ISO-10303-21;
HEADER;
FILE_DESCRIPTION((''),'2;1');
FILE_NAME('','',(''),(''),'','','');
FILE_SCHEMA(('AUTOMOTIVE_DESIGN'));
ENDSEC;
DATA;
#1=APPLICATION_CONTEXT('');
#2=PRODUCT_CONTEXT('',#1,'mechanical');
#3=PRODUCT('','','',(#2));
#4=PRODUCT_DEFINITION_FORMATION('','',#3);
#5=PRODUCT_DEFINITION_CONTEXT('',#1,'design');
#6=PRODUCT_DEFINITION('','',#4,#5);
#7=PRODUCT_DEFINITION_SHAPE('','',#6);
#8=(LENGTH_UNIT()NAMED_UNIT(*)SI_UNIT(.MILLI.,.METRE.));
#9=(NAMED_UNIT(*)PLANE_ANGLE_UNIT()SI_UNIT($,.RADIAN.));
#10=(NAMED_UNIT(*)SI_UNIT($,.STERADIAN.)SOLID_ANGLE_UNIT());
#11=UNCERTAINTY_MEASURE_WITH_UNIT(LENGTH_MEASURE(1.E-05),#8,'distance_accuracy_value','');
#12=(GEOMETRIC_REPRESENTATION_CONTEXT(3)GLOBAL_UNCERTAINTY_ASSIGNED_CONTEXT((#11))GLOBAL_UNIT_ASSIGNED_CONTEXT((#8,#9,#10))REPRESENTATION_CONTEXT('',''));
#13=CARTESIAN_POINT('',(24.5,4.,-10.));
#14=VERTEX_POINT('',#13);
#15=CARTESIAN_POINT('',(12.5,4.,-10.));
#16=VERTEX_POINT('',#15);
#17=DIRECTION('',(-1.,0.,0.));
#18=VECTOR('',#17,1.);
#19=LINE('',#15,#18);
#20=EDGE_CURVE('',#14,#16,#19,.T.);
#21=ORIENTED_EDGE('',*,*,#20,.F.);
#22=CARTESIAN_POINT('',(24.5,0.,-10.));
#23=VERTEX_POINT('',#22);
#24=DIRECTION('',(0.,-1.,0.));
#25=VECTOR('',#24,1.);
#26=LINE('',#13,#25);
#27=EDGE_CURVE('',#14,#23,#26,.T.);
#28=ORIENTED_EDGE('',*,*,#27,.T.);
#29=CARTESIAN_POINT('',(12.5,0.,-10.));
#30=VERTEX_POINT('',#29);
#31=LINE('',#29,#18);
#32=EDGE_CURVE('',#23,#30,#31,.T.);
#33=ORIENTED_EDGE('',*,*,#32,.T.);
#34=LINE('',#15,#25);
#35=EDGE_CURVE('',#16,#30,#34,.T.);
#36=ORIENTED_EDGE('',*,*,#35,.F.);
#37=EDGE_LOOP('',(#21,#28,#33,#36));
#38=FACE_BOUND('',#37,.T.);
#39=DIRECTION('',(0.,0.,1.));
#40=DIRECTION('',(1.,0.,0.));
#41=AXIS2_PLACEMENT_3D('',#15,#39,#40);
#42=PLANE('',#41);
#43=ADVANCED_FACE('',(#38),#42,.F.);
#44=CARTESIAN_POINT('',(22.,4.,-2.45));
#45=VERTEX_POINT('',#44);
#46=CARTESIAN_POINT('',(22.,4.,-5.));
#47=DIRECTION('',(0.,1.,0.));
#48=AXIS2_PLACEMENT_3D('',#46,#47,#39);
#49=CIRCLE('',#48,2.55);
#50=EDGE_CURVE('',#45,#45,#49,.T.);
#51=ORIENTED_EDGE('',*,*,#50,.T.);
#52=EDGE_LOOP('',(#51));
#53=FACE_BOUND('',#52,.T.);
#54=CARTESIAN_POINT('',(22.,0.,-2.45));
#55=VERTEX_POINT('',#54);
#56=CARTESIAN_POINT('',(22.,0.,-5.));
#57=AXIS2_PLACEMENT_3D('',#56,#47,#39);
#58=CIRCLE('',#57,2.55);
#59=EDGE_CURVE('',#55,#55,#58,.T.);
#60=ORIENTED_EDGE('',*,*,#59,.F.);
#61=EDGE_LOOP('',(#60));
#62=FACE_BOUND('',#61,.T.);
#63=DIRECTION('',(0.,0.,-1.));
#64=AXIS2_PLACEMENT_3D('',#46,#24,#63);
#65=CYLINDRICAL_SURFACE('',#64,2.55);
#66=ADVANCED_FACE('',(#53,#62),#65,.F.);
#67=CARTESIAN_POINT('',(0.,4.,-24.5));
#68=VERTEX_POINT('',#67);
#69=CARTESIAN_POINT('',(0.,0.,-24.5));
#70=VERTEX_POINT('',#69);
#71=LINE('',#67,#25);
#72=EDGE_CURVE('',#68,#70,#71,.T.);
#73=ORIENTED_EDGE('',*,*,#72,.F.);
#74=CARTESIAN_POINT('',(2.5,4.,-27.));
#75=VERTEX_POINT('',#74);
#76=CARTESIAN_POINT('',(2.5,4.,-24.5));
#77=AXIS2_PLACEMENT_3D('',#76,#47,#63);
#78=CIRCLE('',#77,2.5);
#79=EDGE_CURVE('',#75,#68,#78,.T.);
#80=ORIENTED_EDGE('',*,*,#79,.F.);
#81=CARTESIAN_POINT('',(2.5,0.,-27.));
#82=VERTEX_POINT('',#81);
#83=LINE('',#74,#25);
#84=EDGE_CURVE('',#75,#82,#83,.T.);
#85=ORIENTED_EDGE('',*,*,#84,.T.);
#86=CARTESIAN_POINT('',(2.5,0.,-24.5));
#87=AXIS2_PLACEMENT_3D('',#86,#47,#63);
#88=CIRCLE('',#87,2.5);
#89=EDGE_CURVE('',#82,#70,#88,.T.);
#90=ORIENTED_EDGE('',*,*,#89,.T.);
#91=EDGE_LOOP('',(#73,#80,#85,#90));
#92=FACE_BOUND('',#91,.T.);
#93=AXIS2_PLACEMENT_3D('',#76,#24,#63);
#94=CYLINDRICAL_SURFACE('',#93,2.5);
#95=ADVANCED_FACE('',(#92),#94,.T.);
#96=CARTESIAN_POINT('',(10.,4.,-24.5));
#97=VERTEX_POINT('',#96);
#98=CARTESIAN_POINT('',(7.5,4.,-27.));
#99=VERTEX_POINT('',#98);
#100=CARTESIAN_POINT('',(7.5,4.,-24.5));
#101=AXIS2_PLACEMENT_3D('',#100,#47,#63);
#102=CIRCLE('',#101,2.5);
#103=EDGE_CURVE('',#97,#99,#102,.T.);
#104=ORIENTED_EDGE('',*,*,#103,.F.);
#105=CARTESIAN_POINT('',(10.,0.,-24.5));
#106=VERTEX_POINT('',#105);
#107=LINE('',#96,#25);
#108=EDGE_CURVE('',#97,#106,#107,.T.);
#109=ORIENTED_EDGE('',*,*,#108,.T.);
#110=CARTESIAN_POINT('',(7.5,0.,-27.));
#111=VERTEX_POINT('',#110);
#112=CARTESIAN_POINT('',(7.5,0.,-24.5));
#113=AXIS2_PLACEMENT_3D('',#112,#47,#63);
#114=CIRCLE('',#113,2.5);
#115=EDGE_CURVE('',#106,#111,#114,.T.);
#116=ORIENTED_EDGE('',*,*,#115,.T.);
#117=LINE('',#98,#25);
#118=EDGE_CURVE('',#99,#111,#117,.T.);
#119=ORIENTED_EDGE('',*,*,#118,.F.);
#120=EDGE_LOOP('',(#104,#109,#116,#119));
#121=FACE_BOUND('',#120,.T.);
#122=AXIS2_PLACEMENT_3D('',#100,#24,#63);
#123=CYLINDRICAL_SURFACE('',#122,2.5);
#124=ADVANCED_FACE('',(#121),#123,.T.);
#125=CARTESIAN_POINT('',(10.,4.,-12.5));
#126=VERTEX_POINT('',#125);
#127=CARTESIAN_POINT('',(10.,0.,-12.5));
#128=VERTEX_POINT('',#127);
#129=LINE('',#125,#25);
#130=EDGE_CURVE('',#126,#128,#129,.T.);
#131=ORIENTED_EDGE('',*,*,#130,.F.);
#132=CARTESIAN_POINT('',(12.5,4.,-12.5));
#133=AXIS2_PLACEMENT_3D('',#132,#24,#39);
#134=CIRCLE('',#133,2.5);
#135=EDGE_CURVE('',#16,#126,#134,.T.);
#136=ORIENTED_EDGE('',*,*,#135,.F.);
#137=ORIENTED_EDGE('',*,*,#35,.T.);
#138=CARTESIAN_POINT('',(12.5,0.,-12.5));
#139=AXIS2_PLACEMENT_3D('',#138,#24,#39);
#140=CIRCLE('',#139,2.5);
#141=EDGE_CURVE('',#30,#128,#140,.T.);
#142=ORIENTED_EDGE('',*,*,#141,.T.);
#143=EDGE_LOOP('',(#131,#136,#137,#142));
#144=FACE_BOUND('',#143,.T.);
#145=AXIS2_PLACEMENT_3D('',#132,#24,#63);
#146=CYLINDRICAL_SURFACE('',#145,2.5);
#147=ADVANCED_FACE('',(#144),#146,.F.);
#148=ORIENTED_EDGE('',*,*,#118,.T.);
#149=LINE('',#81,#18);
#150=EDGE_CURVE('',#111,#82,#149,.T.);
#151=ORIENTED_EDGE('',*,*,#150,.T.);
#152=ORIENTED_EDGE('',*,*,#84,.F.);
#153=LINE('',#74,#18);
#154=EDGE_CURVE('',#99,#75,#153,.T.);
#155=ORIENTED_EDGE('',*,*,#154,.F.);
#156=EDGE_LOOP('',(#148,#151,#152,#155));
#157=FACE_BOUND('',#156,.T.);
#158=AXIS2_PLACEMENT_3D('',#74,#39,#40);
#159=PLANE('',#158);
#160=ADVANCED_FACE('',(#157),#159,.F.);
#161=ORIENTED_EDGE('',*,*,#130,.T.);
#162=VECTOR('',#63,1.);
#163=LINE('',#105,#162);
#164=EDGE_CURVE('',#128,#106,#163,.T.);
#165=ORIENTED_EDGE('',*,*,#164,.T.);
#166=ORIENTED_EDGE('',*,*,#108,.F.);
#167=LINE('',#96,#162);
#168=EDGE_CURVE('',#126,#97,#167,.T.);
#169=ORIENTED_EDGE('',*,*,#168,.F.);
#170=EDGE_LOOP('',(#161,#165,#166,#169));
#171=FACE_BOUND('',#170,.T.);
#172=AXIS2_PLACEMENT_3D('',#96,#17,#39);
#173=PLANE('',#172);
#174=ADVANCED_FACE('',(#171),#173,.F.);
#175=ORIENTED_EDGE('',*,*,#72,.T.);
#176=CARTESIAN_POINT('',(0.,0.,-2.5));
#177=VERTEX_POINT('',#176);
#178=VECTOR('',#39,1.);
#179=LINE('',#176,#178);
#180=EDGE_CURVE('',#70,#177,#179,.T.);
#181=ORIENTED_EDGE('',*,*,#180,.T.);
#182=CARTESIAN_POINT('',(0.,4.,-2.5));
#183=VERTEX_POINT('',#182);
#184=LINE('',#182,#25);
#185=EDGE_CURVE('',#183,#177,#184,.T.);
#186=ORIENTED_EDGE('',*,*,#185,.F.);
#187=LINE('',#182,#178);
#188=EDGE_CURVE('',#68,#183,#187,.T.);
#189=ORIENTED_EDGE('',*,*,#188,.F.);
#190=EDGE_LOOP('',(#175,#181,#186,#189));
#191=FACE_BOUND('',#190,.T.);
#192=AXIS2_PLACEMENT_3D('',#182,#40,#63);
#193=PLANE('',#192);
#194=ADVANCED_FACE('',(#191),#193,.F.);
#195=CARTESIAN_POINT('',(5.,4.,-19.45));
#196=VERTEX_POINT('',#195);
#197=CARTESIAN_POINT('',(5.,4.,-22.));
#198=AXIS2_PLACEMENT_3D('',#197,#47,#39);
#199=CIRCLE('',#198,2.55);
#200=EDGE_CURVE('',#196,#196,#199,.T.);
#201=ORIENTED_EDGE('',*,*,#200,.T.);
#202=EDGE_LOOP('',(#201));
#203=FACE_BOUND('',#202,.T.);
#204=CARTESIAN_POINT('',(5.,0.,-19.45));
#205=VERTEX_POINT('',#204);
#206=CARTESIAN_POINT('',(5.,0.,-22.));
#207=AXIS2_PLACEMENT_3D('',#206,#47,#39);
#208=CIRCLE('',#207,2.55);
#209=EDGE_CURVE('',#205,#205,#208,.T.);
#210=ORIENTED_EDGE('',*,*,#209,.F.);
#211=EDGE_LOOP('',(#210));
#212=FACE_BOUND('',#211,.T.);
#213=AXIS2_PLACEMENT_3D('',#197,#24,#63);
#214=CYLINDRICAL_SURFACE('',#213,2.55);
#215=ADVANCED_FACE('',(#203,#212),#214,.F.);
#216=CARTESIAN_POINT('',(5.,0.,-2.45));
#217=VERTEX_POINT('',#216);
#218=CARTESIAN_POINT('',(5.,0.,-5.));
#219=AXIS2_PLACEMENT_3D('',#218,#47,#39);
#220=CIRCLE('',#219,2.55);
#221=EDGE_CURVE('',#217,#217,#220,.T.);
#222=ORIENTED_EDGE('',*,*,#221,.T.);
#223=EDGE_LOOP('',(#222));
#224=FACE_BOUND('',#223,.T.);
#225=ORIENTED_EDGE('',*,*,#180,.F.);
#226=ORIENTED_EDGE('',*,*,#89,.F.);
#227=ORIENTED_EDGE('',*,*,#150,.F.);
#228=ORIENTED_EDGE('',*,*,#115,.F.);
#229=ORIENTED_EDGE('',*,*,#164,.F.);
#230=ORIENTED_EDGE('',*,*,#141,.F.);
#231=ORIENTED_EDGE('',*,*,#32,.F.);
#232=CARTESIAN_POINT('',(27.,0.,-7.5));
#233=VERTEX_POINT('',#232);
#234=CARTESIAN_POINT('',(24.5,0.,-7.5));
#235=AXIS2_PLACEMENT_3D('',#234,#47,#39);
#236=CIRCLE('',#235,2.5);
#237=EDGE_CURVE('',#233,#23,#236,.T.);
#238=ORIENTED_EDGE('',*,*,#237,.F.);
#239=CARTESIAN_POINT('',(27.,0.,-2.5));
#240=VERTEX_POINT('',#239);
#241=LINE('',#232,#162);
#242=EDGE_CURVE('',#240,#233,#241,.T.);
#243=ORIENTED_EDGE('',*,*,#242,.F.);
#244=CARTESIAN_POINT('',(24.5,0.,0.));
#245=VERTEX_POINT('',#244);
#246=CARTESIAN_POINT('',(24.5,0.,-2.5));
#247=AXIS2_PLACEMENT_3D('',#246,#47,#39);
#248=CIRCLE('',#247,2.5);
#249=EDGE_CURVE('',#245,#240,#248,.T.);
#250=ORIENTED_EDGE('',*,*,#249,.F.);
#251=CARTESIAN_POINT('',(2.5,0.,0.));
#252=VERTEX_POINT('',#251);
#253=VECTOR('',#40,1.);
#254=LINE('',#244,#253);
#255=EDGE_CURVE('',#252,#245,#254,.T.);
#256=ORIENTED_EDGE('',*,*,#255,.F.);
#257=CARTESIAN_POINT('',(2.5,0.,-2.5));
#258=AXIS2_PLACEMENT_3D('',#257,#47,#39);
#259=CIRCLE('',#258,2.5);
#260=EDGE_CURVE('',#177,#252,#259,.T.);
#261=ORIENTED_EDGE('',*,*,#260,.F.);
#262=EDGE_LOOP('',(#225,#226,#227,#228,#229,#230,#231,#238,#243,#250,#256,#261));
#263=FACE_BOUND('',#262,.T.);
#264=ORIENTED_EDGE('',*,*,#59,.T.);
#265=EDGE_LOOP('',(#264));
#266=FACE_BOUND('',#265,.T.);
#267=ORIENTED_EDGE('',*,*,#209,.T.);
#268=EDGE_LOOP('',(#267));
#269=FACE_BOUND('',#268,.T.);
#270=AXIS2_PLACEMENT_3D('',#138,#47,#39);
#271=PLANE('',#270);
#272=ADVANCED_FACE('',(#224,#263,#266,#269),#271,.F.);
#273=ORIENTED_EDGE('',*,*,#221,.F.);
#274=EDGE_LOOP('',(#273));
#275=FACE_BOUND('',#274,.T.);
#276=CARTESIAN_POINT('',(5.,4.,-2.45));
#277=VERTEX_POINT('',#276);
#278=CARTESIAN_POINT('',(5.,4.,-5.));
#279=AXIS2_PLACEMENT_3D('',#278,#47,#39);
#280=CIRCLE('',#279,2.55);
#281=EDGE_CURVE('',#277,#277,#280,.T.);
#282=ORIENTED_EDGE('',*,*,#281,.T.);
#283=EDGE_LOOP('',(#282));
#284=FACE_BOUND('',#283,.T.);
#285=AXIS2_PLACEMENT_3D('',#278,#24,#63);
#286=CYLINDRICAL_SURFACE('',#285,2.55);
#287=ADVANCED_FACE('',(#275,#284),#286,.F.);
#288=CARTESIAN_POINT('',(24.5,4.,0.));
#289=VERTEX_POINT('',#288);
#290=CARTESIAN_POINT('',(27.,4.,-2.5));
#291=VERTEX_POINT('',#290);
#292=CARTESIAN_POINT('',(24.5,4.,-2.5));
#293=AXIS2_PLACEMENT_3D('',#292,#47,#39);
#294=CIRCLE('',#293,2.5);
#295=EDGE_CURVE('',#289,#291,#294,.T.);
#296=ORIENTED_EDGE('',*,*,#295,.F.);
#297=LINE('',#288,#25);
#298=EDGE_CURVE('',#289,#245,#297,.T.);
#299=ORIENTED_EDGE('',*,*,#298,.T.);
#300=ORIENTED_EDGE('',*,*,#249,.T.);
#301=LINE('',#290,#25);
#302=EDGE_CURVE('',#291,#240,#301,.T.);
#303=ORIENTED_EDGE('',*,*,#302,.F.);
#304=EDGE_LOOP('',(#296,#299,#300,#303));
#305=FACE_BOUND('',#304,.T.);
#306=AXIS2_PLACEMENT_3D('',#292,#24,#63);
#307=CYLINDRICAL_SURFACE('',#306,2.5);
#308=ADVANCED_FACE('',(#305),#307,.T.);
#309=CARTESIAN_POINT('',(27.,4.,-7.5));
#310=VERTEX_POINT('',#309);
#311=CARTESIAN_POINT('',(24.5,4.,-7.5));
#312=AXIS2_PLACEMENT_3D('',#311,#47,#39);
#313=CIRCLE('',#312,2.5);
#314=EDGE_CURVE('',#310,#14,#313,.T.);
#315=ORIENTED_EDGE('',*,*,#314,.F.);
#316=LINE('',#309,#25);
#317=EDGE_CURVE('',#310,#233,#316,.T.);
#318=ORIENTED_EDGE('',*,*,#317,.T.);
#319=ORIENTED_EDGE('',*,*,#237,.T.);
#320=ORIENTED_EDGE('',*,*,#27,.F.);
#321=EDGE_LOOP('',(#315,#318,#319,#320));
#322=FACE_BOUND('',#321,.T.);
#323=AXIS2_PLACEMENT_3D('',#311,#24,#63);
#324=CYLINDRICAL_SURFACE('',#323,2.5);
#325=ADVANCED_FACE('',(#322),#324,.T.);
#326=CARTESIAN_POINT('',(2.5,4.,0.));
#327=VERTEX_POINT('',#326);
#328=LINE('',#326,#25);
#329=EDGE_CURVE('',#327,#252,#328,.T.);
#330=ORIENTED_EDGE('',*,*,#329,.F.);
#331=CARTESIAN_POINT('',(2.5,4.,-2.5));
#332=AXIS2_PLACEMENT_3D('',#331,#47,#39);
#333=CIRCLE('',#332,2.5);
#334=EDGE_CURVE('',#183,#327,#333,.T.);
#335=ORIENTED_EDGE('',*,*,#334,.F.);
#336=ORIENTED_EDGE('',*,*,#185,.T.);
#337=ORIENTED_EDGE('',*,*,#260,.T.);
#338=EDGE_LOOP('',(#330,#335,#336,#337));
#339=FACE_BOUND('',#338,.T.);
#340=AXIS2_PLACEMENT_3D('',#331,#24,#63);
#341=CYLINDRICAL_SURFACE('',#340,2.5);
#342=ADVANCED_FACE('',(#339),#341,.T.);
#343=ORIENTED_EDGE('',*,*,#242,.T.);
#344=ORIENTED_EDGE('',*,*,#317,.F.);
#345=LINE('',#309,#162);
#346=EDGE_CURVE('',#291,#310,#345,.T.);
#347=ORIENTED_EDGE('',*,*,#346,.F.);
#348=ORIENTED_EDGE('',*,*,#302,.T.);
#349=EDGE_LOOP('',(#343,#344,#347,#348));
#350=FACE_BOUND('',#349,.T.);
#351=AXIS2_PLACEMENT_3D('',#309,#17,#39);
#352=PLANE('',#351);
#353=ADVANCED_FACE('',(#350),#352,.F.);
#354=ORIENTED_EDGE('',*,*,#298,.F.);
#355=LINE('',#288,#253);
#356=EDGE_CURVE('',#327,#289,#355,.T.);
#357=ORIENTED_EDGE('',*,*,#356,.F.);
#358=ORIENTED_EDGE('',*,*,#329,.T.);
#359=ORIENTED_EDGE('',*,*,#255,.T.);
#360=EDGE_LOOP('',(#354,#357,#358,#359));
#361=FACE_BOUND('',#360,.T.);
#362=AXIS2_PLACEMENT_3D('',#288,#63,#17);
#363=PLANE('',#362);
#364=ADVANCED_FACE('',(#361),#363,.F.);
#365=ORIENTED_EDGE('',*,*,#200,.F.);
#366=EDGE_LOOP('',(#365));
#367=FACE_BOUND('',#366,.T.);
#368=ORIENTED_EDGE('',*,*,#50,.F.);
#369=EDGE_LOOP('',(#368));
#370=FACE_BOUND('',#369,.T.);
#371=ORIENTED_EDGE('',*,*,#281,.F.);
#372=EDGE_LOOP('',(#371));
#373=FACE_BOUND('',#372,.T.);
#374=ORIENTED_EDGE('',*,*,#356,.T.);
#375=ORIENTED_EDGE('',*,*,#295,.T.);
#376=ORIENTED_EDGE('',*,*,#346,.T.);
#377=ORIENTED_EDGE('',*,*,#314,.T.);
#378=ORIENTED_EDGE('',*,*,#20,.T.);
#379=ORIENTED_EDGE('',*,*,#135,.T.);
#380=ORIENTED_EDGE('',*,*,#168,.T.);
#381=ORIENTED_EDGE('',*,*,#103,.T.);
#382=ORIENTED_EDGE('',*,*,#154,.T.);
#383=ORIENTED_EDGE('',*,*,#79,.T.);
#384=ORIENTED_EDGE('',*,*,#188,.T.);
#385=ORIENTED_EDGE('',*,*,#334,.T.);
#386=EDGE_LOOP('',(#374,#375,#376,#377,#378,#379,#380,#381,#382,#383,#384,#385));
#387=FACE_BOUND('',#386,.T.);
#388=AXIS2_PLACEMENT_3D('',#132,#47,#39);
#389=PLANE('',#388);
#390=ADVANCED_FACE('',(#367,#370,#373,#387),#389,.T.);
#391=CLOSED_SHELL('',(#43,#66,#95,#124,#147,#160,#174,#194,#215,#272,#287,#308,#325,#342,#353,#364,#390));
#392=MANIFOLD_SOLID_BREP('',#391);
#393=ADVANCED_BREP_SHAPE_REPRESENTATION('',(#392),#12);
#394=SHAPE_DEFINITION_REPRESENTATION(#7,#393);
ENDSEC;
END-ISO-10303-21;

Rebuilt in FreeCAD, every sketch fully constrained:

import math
import FreeCAD as App
import Part
import Sketcher

doc = App.newDocument("Part")
body = doc.addObject("PartDesign::Body", "Body")

# Sketch on XZ plane
sketch1 = body.newObject("Sketcher::SketchObject", "Sketch")
sketch1.AttachmentSupport = (doc.getObject("XZ_Plane"), [""])
sketch1.MapMode = "FlatFace"
sketch1.addGeometry([
    Part.LineSegment(App.Vector(0, -24.5, 0), App.Vector(0, -2.5, 0)),  # 0
    Part.ArcOfCircle(Part.Circle(App.Vector(2.5, -2.5, 0), App.Vector(0, 0, 1), 2.5), math.radians(90), math.radians(180)),  # 1
    Part.LineSegment(App.Vector(2.5, 0, 0), App.Vector(24.5, 0, 0)),  # 2
    Part.ArcOfCircle(Part.Circle(App.Vector(24.5, -2.5, 0), App.Vector(0, 0, 1), 2.5), math.radians(0), math.radians(90)),  # 3
    Part.LineSegment(App.Vector(27, -2.5, 0), App.Vector(27, -7.5, 0)),  # 4
    Part.ArcOfCircle(Part.Circle(App.Vector(24.5, -7.5, 0), App.Vector(0, 0, 1), 2.5), math.radians(-90), math.radians(0)),  # 5
    Part.LineSegment(App.Vector(24.5, -10, 0), App.Vector(12.5, -10, 0)),  # 6
    Part.ArcOfCircle(Part.Circle(App.Vector(12.5, -12.5, 0), App.Vector(0, 0, 1), 2.5), math.radians(90), math.radians(180)),  # 7
    Part.LineSegment(App.Vector(10, -12.5, 0), App.Vector(10, -24.5, 0)),  # 8
    Part.ArcOfCircle(Part.Circle(App.Vector(7.5, -24.5, 0), App.Vector(0, 0, 1), 2.5), math.radians(-90), math.radians(0)),  # 9
    Part.LineSegment(App.Vector(7.5, -27, 0), App.Vector(2.5, -27, 0)),  # 10
    Part.ArcOfCircle(Part.Circle(App.Vector(2.5, -24.5, 0), App.Vector(0, 0, 1), 2.5), math.radians(180), math.radians(270)),  # 11
    Part.Circle(App.Vector(22, -5, 0), App.Vector(0, 0, 1), 2.5),  # 12
    Part.Circle(App.Vector(5, -5, 0), App.Vector(0, 0, 1), 2.5),  # 13
    Part.Circle(App.Vector(5, -22, 0), App.Vector(0, 0, 1), 2.5),  # 14
], False)
sketch1.addConstraint([
    Sketcher.Constraint("Tangent", 0, 2, 1, 2),
    Sketcher.Constraint("Tangent", 1, 1, 2, 1),
    Sketcher.Constraint("Tangent", 2, 2, 3, 2),
    Sketcher.Constraint("Tangent", 3, 1, 4, 1),
    Sketcher.Constraint("Tangent", 4, 2, 5, 2),
    Sketcher.Constraint("Tangent", 5, 1, 6, 1),
    Sketcher.Constraint("Tangent", 6, 2, 7, 1),
    Sketcher.Constraint("Tangent", 7, 2, 8, 1),
    Sketcher.Constraint("Tangent", 8, 2, 9, 2),
    Sketcher.Constraint("Tangent", 9, 1, 10, 1),
    Sketcher.Constraint("Tangent", 10, 2, 11, 2),
    Sketcher.Constraint("Tangent", 11, 1, 0, 1),
    Sketcher.Constraint("Vertical", 0),
    Sketcher.Constraint("Horizontal", 2),
    Sketcher.Constraint("Vertical", 4),
    Sketcher.Constraint("Horizontal", 6),
    Sketcher.Constraint("Vertical", 8),
    Sketcher.Constraint("Horizontal", 10),
    Sketcher.Constraint("Equal", 1, 3),
    Sketcher.Constraint("Equal", 3, 5),
    Sketcher.Constraint("Equal", 5, 7),
    Sketcher.Constraint("Equal", 7, 9),
    Sketcher.Constraint("Equal", 9, 11),
    Sketcher.Constraint("Equal", 12, 13),
    Sketcher.Constraint("Equal", 13, 14),
    Sketcher.Constraint("PointOnObject", 0, 2, -2),
    Sketcher.Constraint("PointOnObject", 1, 1, -1),
    Sketcher.Constraint("Horizontal", 12, 3, 13, 3),
    Sketcher.Constraint("Vertical", 13, 3, 14, 3),
    Sketcher.Constraint("Equal", 2, 0),
    Sketcher.Constraint("Equal", 10, 4),
    Sketcher.Constraint("Diameter", 12, 5.1),
    Sketcher.Constraint("Radius", 1, 2.5),
    Sketcher.Constraint("DistanceX", 2, 1, 2, 2, 22.0),
    Sketcher.Constraint("DistanceX", 6, 2, 6, 1, 12.0),
    Sketcher.Constraint("DistanceX", -1, 1, 12, 3, 22.0),
    Sketcher.Constraint("DistanceY", 12, 3, -1, 1, 5.0),
    Sketcher.Constraint("DistanceX", -1, 1, 13, 3, 5.0),
    Sketcher.Constraint("DistanceY", 14, 3, -1, 1, 22.0),
])
pad1 = body.newObject("PartDesign::Pad", "Pad")
pad1.Profile = sketch1
pad1.Length = 4
pad1.Reversed = True

doc.recompute()
